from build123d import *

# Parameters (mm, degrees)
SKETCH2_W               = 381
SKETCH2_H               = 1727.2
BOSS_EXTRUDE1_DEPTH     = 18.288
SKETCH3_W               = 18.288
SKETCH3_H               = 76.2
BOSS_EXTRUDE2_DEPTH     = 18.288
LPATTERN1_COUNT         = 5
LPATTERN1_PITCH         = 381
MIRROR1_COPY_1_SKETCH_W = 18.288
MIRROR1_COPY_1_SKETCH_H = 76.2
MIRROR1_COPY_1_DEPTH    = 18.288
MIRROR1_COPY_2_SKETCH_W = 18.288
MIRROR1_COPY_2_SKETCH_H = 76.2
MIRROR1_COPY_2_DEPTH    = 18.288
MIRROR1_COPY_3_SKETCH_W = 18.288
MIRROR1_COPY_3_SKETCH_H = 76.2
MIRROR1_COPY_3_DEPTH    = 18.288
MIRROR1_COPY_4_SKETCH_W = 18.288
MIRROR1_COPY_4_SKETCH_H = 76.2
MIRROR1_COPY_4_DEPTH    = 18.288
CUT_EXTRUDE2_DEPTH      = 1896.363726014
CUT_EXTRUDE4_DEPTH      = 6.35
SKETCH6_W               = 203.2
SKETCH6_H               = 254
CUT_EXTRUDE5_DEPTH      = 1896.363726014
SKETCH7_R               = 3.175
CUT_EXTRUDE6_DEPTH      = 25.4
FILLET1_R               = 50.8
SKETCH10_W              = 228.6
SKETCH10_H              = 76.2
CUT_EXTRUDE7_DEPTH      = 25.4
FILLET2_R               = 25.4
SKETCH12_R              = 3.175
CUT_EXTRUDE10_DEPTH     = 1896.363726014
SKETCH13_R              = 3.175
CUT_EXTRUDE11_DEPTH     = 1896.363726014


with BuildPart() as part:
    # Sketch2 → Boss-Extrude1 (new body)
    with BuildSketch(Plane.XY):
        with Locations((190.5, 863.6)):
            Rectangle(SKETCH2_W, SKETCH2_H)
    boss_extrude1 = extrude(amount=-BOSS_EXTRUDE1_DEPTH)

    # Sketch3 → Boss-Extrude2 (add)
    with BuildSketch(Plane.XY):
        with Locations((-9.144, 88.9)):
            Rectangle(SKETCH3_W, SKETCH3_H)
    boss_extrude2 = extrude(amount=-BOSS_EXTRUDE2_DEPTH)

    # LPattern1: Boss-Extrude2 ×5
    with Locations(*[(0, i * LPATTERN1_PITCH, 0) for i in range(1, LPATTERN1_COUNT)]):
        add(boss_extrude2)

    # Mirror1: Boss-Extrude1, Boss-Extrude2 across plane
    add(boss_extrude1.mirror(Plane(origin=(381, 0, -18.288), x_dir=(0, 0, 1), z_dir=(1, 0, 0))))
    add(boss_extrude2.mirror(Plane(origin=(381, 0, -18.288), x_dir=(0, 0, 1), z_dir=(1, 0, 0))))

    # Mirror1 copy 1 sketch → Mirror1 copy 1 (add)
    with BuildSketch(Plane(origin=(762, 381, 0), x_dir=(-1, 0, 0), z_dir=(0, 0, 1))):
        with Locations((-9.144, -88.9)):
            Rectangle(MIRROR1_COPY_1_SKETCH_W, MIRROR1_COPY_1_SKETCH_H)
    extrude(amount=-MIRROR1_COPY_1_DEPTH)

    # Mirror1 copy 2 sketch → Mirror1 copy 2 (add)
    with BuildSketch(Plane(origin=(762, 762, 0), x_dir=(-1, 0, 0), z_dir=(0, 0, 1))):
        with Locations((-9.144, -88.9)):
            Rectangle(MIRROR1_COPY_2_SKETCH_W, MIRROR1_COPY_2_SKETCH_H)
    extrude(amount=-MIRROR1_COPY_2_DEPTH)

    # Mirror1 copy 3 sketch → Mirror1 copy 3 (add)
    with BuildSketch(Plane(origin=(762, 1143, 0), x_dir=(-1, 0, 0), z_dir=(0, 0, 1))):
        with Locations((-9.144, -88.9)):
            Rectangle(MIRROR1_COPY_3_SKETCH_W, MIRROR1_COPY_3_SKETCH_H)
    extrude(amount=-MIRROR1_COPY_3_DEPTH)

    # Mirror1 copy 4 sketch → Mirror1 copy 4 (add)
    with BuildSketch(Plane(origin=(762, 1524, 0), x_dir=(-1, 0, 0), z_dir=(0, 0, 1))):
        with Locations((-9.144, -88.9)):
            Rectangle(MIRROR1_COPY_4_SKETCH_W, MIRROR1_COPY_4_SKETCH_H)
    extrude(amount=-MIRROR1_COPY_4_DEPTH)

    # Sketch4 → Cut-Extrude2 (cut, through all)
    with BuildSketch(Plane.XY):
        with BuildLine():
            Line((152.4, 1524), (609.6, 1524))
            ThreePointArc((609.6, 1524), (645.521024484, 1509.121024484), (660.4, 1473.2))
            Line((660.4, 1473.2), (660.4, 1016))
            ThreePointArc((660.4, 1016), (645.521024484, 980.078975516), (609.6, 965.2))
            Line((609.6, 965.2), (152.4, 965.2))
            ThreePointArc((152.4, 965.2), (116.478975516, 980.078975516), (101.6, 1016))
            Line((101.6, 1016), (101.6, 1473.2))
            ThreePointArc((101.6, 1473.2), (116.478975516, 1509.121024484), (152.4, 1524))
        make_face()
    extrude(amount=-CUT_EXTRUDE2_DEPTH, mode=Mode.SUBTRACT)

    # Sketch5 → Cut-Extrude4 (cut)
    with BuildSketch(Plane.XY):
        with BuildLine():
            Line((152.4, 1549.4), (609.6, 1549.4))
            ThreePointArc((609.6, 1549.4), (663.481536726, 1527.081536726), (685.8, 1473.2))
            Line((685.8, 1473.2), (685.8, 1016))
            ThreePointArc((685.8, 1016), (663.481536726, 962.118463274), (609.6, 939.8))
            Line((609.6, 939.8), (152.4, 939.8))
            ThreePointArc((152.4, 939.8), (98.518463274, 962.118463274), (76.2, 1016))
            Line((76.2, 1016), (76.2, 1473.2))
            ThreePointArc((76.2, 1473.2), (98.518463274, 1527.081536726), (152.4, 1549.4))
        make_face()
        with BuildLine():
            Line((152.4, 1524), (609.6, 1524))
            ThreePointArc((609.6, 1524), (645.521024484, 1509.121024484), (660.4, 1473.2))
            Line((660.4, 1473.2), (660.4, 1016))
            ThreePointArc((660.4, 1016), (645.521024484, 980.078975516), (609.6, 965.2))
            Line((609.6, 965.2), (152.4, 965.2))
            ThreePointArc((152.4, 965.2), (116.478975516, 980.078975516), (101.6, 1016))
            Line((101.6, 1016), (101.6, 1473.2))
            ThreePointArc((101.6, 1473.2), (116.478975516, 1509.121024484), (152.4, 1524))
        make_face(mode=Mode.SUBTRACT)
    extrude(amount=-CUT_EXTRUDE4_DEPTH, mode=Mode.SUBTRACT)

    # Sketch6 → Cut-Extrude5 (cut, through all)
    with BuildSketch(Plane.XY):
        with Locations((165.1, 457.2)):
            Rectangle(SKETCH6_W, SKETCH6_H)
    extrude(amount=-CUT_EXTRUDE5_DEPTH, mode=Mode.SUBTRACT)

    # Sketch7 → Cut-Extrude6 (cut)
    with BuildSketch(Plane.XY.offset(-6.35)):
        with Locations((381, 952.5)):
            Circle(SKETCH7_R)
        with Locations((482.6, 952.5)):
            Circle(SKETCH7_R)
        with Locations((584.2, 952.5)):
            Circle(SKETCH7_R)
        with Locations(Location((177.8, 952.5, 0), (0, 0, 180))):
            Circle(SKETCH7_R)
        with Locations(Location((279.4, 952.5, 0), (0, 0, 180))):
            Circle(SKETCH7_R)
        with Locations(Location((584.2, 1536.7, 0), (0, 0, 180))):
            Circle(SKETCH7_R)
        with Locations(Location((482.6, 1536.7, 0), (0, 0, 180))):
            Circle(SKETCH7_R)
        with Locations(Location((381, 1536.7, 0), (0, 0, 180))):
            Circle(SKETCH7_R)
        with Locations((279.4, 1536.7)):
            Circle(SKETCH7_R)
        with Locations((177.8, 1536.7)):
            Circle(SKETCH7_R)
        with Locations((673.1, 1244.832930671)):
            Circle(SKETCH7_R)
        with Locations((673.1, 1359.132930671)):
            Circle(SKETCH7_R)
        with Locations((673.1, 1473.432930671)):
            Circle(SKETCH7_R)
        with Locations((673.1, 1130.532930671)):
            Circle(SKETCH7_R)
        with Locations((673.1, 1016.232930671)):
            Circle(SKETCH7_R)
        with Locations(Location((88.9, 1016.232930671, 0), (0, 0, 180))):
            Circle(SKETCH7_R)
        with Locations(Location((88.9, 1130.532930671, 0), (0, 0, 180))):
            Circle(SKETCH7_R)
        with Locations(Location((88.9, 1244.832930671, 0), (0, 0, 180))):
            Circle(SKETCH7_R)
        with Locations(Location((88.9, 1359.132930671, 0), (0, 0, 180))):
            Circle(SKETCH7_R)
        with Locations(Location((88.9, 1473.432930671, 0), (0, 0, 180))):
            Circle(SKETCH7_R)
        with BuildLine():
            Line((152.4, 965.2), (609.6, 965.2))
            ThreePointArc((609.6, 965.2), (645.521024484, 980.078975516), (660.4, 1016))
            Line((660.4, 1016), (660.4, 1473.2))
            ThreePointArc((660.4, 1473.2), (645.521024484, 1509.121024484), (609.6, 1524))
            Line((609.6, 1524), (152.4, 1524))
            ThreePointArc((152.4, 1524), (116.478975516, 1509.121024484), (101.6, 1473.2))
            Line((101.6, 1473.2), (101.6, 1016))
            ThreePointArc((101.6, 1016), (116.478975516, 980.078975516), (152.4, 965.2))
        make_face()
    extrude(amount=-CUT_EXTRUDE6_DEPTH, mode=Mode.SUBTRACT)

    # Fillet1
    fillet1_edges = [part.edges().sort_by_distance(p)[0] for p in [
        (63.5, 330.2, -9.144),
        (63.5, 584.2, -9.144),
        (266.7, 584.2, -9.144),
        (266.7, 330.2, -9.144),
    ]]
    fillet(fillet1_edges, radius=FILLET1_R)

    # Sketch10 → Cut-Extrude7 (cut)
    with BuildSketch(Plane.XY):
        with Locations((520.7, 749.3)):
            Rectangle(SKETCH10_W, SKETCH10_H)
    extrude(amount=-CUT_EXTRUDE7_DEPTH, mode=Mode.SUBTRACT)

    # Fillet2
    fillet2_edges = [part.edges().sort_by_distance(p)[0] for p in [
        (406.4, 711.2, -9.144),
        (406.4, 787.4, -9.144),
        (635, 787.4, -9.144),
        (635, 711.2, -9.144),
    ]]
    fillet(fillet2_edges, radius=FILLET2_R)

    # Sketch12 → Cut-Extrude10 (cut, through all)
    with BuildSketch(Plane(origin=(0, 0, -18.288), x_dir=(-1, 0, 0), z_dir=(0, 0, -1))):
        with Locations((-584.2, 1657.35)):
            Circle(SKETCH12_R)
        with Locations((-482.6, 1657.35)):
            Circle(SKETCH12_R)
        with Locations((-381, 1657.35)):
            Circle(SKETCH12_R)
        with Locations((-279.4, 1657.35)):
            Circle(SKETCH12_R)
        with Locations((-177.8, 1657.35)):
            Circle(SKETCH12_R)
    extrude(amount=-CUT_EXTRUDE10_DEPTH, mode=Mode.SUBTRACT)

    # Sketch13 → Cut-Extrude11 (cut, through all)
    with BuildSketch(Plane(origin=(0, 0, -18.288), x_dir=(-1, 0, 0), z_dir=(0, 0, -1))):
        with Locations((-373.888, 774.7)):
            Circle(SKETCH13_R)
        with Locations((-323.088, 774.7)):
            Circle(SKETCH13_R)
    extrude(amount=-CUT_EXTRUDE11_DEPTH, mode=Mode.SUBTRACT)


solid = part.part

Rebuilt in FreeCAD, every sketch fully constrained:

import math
import FreeCAD as App
import Part
import Sketcher
from FreeCAD import Vector
Q = App.Units.Quantity


def edges_at(feature, points):
    """Names of the edges that pass closest to the given points."""
    edges = feature.Shape.Edges
    near = lambda p: min(range(len(edges)), key=lambda i: edges[i].distToShape(Part.Vertex(*p))[0])
    return sorted({f"Edge{near(p) + 1}" for p in points})


def add_polygon(sketch, points):
    """Adds a closed chain of lines whose ends are joined by coincident constraints."""
    first, n = sketch.GeometryCount, len(points)
    for a, b in zip(points, points[1:] + points[:1]):
        sketch.addGeometry(Part.LineSegment(App.Vector(*a, 0), App.Vector(*b, 0)), False)
    for i in range(n):
        sketch.addConstraint(Sketcher.Constraint("Coincident", first + i, 2, first + (i + 1) % n, 1))

doc = App.newDocument("Part")
body = doc.addObject("PartDesign::Body", "Body")

# Sketch on XY plane
sketch1 = body.newObject("Sketcher::SketchObject", "Sketch")
sketch1.AttachmentSupport = (doc.getObject("XY_Plane"), [""])
sketch1.MapMode = "FlatFace"
add_polygon(sketch1, [(0, 1727), (0, 0), (381, 0), (381, 1727)])  # lines 0-3
sketch1.addConstraint(Sketcher.Constraint("Vertical", 0))
sketch1.addConstraint(Sketcher.Constraint("Horizontal", 1))
sketch1.addConstraint(Sketcher.Constraint("Vertical", 2))
sketch1.addConstraint(Sketcher.Constraint("Horizontal", 3))
sketch1.addConstraint(Sketcher.Constraint("Coincident", 0, 2, -1, 1))
sketch1.addConstraint(Sketcher.Constraint("DistanceX", 1, 1, 1, 2, Q("15 in")))
sketch1.addConstraint(Sketcher.Constraint("DistanceY", 0, 2, 0, 1, Q("68 in")))
pad1 = body.newObject("PartDesign::Pad", "Pad")
pad1.Profile = sketch1
pad1.Length = Q("0.72 in")
pad1.Reversed = True

# Sketch on XY plane
sketch2 = body.newObject("Sketcher::SketchObject", "Sketch001")
sketch2.AttachmentSupport = (doc.getObject("XY_Plane"), [""])
sketch2.MapMode = "FlatFace"
add_polygon(sketch2, [(-18, 127), (-18, 51), (0, 51), (0, 127)])  # lines 0-3
sketch2.addConstraint(Sketcher.Constraint("Vertical", 0))
sketch2.addConstraint(Sketcher.Constraint("Horizontal", 1))
sketch2.addConstraint(Sketcher.Constraint("Vertical", 2))
sketch2.addConstraint(Sketcher.Constraint("Horizontal", 3))
sketch2.addConstraint(Sketcher.Constraint("PointOnObject", 1, 2, -2))
sketch2.addConstraint(Sketcher.Constraint("DistanceY", 0, 2, 0, 1, Q("3 in")))
sketch2.addConstraint(Sketcher.Constraint("DistanceY", -1, 1, 0, 2, Q("2 in")))
sketch2.addConstraint(Sketcher.Constraint("DistanceX", 1, 1, 1, 2, Q("0.72 in")))
pad2 = body.newObject("PartDesign::Pad", "Pad001")
pad2.Profile = sketch2
pad2.Length = Q("0.72 in")
pad2.Reversed = True
doc.recompute()

linearpattern = body.newObject("PartDesign::LinearPattern", "LinearPattern")
linearpattern.Originals = [pad2]
linearpattern.Direction = (doc.getObject("Y_Axis"), [""])
linearpattern.Mode = "offset"
linearpattern.Offset = Q("15 in")
linearpattern.Occurrences = 5
body.Tip = linearpattern
doc.recompute()

datumplane = body.newObject("PartDesign::Plane", "DatumPlane")
datumplane.AttachmentSupport = (doc.getObject("YZ_Plane"), [""])
datumplane.MapMode = "FlatFace"
datumplane.AttachmentOffset = App.Placement(Vector(0, 0, 15 * 25.4), App.Rotation())
mirrored = body.newObject("PartDesign::Mirrored", "Mirrored")
mirrored.Originals = [pad1, pad2]
mirrored.MirrorPlane = (datumplane, [""])
body.Tip = mirrored

# Sketch on XY plane
sketch3 = body.newObject("Sketcher::SketchObject", "Sketch002")
sketch3.AttachmentSupport = (doc.getObject("XY_Plane"), [""])
sketch3.MapMode = "FlatFace"
add_polygon(sketch3, [(780, 432), (780, 508), (762, 508), (762, 432)])  # lines 0-3
sketch3.addConstraint(Sketcher.Constraint("Vertical", 0))
sketch3.addConstraint(Sketcher.Constraint("Horizontal", 1))
sketch3.addConstraint(Sketcher.Constraint("Vertical", 2))
sketch3.addConstraint(Sketcher.Constraint("Horizontal", 3))
sketch3.addConstraint(Sketcher.Constraint("DistanceY", 0, 1, 0, 2, Q("3 in")))
sketch3.addConstraint(Sketcher.Constraint("DistanceY", -1, 1, 0, 2, Q("20 in")))
sketch3.addConstraint(Sketcher.Constraint("DistanceX", -1, 1, 1, 2, Q("30 in")))
sketch3.addConstraint(Sketcher.Constraint("DistanceX", 1, 2, 1, 1, Q("0.72 in")))
pad3 = body.newObject("PartDesign::Pad", "Pad002")
pad3.Profile = sketch3
pad3.Length = Q("0.72 in")
pad3.Reversed = True

# Sketch on XY plane
sketch4 = body.newObject("Sketcher::SketchObject", "Sketch003")
sketch4.AttachmentSupport = (doc.getObject("XY_Plane"), [""])
sketch4.MapMode = "FlatFace"
add_polygon(sketch4, [(780, 813), (780, 889), (762, 889), (762, 813)])  # lines 0-3
sketch4.addConstraint(Sketcher.Constraint("Vertical", 0))
sketch4.addConstraint(Sketcher.Constraint("Horizontal", 1))
sketch4.addConstraint(Sketcher.Constraint("Vertical", 2))
sketch4.addConstraint(Sketcher.Constraint("Horizontal", 3))
sketch4.addConstraint(Sketcher.Constraint("DistanceY", 0, 1, 0, 2, Q("3 in")))
sketch4.addConstraint(Sketcher.Constraint("DistanceY", -1, 1, 0, 2, Q("35 in")))
sketch4.addConstraint(Sketcher.Constraint("DistanceX", -1, 1, 1, 2, Q("30 in")))
sketch4.addConstraint(Sketcher.Constraint("DistanceX", 1, 2, 1, 1, Q("0.72 in")))
pad4 = body.newObject("PartDesign::Pad", "Pad003")
pad4.Profile = sketch4
pad4.Length = Q("0.72 in")
pad4.Reversed = True

# Sketch on XY plane
sketch5 = body.newObject("Sketcher::SketchObject", "Sketch004")
sketch5.AttachmentSupport = (doc.getObject("XY_Plane"), [""])
sketch5.MapMode = "FlatFace"
add_polygon(sketch5, [(780, 1194), (780, 1270), (762, 1270), (762, 1194)])  # lines 0-3
sketch5.addConstraint(Sketcher.Constraint("Vertical", 0))
sketch5.addConstraint(Sketcher.Constraint("Horizontal", 1))
sketch5.addConstraint(Sketcher.Constraint("Vertical", 2))
sketch5.addConstraint(Sketcher.Constraint("Horizontal", 3))
sketch5.addConstraint(Sketcher.Constraint("DistanceY", 0, 1, 0, 2, Q("3 in")))
sketch5.addConstraint(Sketcher.Constraint("DistanceY", -1, 1, 0, 2, Q("50 in")))
sketch5.addConstraint(Sketcher.Constraint("DistanceX", -1, 1, 1, 2, Q("30 in")))
sketch5.addConstraint(Sketcher.Constraint("DistanceX", 1, 2, 1, 1, Q("0.72 in")))
pad5 = body.newObject("PartDesign::Pad", "Pad004")
pad5.Profile = sketch5
pad5.Length = Q("0.72 in")
pad5.Reversed = True

# Sketch on XY plane
sketch6 = body.newObject("Sketcher::SketchObject", "Sketch005")
sketch6.AttachmentSupport = (doc.getObject("XY_Plane"), [""])
sketch6.MapMode = "FlatFace"
add_polygon(sketch6, [(780, 1575), (780, 1651), (762, 1651), (762, 1575)])  # lines 0-3
sketch6.addConstraint(Sketcher.Constraint("Vertical", 0))
sketch6.addConstraint(Sketcher.Constraint("Horizontal", 1))
sketch6.addConstraint(Sketcher.Constraint("Vertical", 2))
sketch6.addConstraint(Sketcher.Constraint("Horizontal", 3))
sketch6.addConstraint(Sketcher.Constraint("DistanceY", 0, 1, 0, 2, Q("3 in")))
sketch6.addConstraint(Sketcher.Constraint("DistanceY", -1, 1, 0, 2, Q("65 in")))
sketch6.addConstraint(Sketcher.Constraint("DistanceX", -1, 1, 1, 2, Q("30 in")))
sketch6.addConstraint(Sketcher.Constraint("DistanceX", 1, 2, 1, 1, Q("0.72 in")))
pad6 = body.newObject("PartDesign::Pad", "Pad005")
pad6.Profile = sketch6
pad6.Length = Q("0.72 in")
pad6.Reversed = True

# Sketch on XY plane
sketch7 = body.newObject("Sketcher::SketchObject", "Sketch006")
sketch7.AttachmentSupport = (doc.getObject("XY_Plane"), [""])
sketch7.MapMode = "FlatFace"
sketch7.addGeometry(Part.LineSegment(Vector(610, 1524, 0), Vector(152, 1524, 0)), False)
sketch7.addGeometry(Part.ArcOfCircle(Part.Circle(Vector(152, 1473, 0), Vector(0, 0, 1), 51), math.radians(90), math.radians(180)), False)
sketch7.addGeometry(Part.LineSegment(Vector(102, 1473, 0), Vector(102, 1016, 0)), False)
sketch7.addGeometry(Part.ArcOfCircle(Part.Circle(Vector(152, 1016, 0), Vector(0, 0, 1), 51), math.radians(-180), math.radians(-90)), False)
sketch7.addGeometry(Part.LineSegment(Vector(152, 965, 0), Vector(610, 965, 0)), False)
sketch7.addGeometry(Part.ArcOfCircle(Part.Circle(Vector(610, 1016, 0), Vector(0, 0, 1), 51), math.radians(-90), math.radians(0)), False)
sketch7.addGeometry(Part.LineSegment(Vector(660, 1016, 0), Vector(660, 1473, 0)), False)
sketch7.addGeometry(Part.ArcOfCircle(Part.Circle(Vector(610, 1473, 0), Vector(0, 0, 1), 51), math.radians(0), math.radians(90)), False)
sketch7.addConstraint(Sketcher.Constraint("Tangent", 0, 2, 1, 1))
sketch7.addConstraint(Sketcher.Constraint("Tangent", 1, 2, 2, 1))
sketch7.addConstraint(Sketcher.Constraint("Tangent", 2, 2, 3, 1))
sketch7.addConstraint(Sketcher.Constraint("Tangent", 3, 2, 4, 1))
sketch7.addConstraint(Sketcher.Constraint("Tangent", 4, 2, 5, 1))
sketch7.addConstraint(Sketcher.Constraint("Tangent", 5, 2, 6, 1))
sketch7.addConstraint(Sketcher.Constraint("Tangent", 6, 2, 7, 1))
sketch7.addConstraint(Sketcher.Constraint("Tangent", 7, 2, 0, 1))
sketch7.addConstraint(Sketcher.Constraint("Horizontal", 0))
sketch7.addConstraint(Sketcher.Constraint("Vertical", 2))
sketch7.addConstraint(Sketcher.Constraint("Horizontal", 4))
sketch7.addConstraint(Sketcher.Constraint("Vertical", 6))
sketch7.addConstraint(Sketcher.Constraint("Equal", 1, 3))
sketch7.addConstraint(Sketcher.Constraint("Equal", 3, 5))
sketch7.addConstraint(Sketcher.Constraint("Equal", 5, 7))
sketch7.addConstraint(Sketcher.Constraint("Equal", 4, 2))
sketch7.addConstraint(Sketcher.Constraint("Radius", 1, Q("2 in")))
sketch7.addConstraint(Sketcher.Constraint("DistanceX", 0, 2, 0, 1, Q("18 in")))
sketch7.addConstraint(Sketcher.Constraint("DistanceX", -1, 1, 1, 3, Q("6 in")))
sketch7.addConstraint(Sketcher.Constraint("DistanceY", -1, 1, 1, 3, Q("58 in")))
pocket1 = body.newObject("PartDesign::Pocket", "Pocket")
pocket1.Profile = sketch7
pocket1.Type = "ThroughAll"

# Sketch on XY plane
sketch8 = body.newObject("Sketcher::SketchObject", "Sketch007")
sketch8.AttachmentSupport = (doc.getObject("XY_Plane"), [""])
sketch8.MapMode = "FlatFace"
sketch8.addGeometry(Part.LineSegment(Vector(610, 1549, 0), Vector(152, 1549, 0)), False)
sketch8.addGeometry(Part.ArcOfCircle(Part.Circle(Vector(152, 1473, 0), Vector(0, 0, 1), 76), math.radians(90), math.radians(180)), False)
sketch8.addGeometry(Part.LineSegment(Vector(76, 1473, 0), Vector(76, 1016, 0)), False)
sketch8.addGeometry(Part.ArcOfCircle(Part.Circle(Vector(152, 1016, 0), Vector(0, 0, 1), 76), math.radians(-180), math.radians(-90)), False)
sketch8.addGeometry(Part.LineSegment(Vector(152, 940, 0), Vector(610, 940, 0)), False)
sketch8.addGeometry(Part.ArcOfCircle(Part.Circle(Vector(610, 1016, 0), Vector(0, 0, 1), 76), math.radians(-90), math.radians(0)), False)
sketch8.addGeometry(Part.LineSegment(Vector(686, 1016, 0), Vector(686, 1473, 0)), False)
sketch8.addGeometry(Part.ArcOfCircle(Part.Circle(Vector(610, 1473, 0), Vector(0, 0, 1), 76), math.radians(0), math.radians(90)), False)
sketch8.addGeometry(Part.LineSegment(Vector(152, 1524, 0), Vector(610, 1524, 0)), False)
sketch8.addGeometry(Part.ArcOfCircle(Part.Circle(Vector(610, 1473, 0), Vector(0, 0, 1), 51), math.radians(0), math.radians(90)), False)
sketch8.addGeometry(Part.LineSegment(Vector(660, 1473, 0), Vector(660, 1016, 0)), False)
sketch8.addGeometry(Part.ArcOfCircle(Part.Circle(Vector(610, 1016, 0), Vector(0, 0, 1), 51), math.radians(-90), math.radians(0)), False)
sketch8.addGeometry(Part.LineSegment(Vector(610, 965, 0), Vector(152, 965, 0)), False)
sketch8.addGeometry(Part.ArcOfCircle(Part.Circle(Vector(152, 1016, 0), Vector(0, 0, 1), 51), math.radians(-180), math.radians(-90)), False)
sketch8.addGeometry(Part.LineSegment(Vector(102, 1016, 0), Vector(102, 1473, 0)), False)
sketch8.addGeometry(Part.ArcOfCircle(Part.Circle(Vector(152, 1473, 0), Vector(0, 0, 1), 51), math.radians(90), math.radians(180)), False)
sketch8.addConstraint(Sketcher.Constraint("Tangent", 0, 2, 1, 1))
sketch8.addConstraint(Sketcher.Constraint("Tangent", 1, 2, 2, 1))
sketch8.addConstraint(Sketcher.Constraint("Tangent", 2, 2, 3, 1))
sketch8.addConstraint(Sketcher.Constraint("Tangent", 3, 2, 4, 1))
sketch8.addConstraint(Sketcher.Constraint("Tangent", 4, 2, 5, 1))
sketch8.addConstraint(Sketcher.Constraint("Tangent", 5, 2, 6, 1))
sketch8.addConstraint(Sketcher.Constraint("Tangent", 6, 2, 7, 1))
sketch8.addConstraint(Sketcher.Constraint("Tangent", 7, 2, 0, 1))
sketch8.addConstraint(Sketcher.Constraint("Tangent", 8, 2, 9, 2))
sketch8.addConstraint(Sketcher.Constraint("Tangent", 9, 1, 10, 1))
sketch8.addConstraint(Sketcher.Constraint("Tangent", 10, 2, 11, 2))
sketch8.addConstraint(Sketcher.Constraint("Tangent", 11, 1, 12, 1))
sketch8.addConstraint(Sketcher.Constraint("Tangent", 12, 2, 13, 2))
sketch8.addConstraint(Sketcher.Constraint("Tangent", 13, 1, 14, 1))
sketch8.addConstraint(Sketcher.Constraint("Tangent", 14, 2, 15, 2))
sketch8.addConstraint(Sketcher.Constraint("Tangent", 15, 1, 8, 1))
sketch8.addConstraint(Sketcher.Constraint("Horizontal", 0))
sketch8.addConstraint(Sketcher.Constraint("Vertical", 2))
sketch8.addConstraint(Sketcher.Constraint("Horizontal", 4))
sketch8.addConstraint(Sketcher.Constraint("Vertical", 6))
sketch8.addConstraint(Sketcher.Constraint("Horizontal", 8))
sketch8.addConstraint(Sketcher.Constraint("Vertical", 10))
sketch8.addConstraint(Sketcher.Constraint("Horizontal", 12))
sketch8.addConstraint(Sketcher.Constraint("Vertical", 14))
sketch8.addConstraint(Sketcher.Constraint("Coincident", 9, 3, 7, 3))
sketch8.addConstraint(Sketcher.Constraint("Coincident", 11, 3, 5, 3))
sketch8.addConstraint(Sketcher.Constraint("Coincident", 13, 3, 3, 3))
sketch8.addConstraint(Sketcher.Constraint("Equal", 1, 3))
sketch8.addConstraint(Sketcher.Constraint("Equal", 3, 5))
sketch8.addConstraint(Sketcher.Constraint("Equal", 5, 7))
sketch8.addConstraint(Sketcher.Constraint("Equal", 13, 15))
sketch8.addConstraint(Sketcher.Constraint("Equal", 12, 2))
sketch8.addConstraint(Sketcher.Constraint("Radius", 1, Q("3 in")))
sketch8.addConstraint(Sketcher.Constraint("Radius", 9, Q("2 in")))
sketch8.addConstraint(Sketcher.Constraint("DistanceX", 0, 2, 0, 1, Q("18 in")))
sketch8.addConstraint(Sketcher.Constraint("DistanceX", -1, 1, 1, 3, Q("6 in")))
sketch8.addConstraint(Sketcher.Constraint("DistanceY", -1, 1, 1, 3, Q("58 in")))
pocket2 = body.newObject("PartDesign::Pocket", "Pocket001")
pocket2.Profile = sketch8
pocket2.Length = Q("0.25 in")

# Sketch on XY plane
sketch9 = body.newObject("Sketcher::SketchObject", "Sketch008")
sketch9.AttachmentSupport = (doc.getObject("XY_Plane"), [""])
sketch9.MapMode = "FlatFace"
add_polygon(sketch9, [(64, 584), (64, 330), (267, 330), (267, 584)])  # lines 0-3
sketch9.addConstraint(Sketcher.Constraint("Vertical", 0))
sketch9.addConstraint(Sketcher.Constraint("Horizontal", 1))
sketch9.addConstraint(Sketcher.Constraint("Vertical", 2))
sketch9.addConstraint(Sketcher.Constraint("Horizontal", 3))
sketch9.addConstraint(Sketcher.Constraint("DistanceX", 1, 1, 1, 2, Q("8 in")))
sketch9.addConstraint(Sketcher.Constraint("DistanceY", 0, 2, 0, 1, Q("10 in")))
sketch9.addConstraint(Sketcher.Constraint("DistanceY", -1, 1, 0, 2, Q("13 in")))
sketch9.addConstraint(Sketcher.Constraint("DistanceX", -1, 1, 0, 2, Q("2.5 in")))
pocket3 = body.newObject("PartDesign::Pocket", "Pocket002")
pocket3.Profile = sketch9
pocket3.Type = "ThroughAll"

# Sketch on XY plane
sketch10 = body.newObject("Sketcher::SketchObject", "Sketch009")
sketch10.AttachmentSupport = (doc.getObject("XY_Plane"), [""])
sketch10.MapMode = "FlatFace"
sketch10.AttachmentOffset = App.Placement(Vector(0, 0, -0.25 * 25.4), App.Rotation())
sketch10.addGeometry(Part.Circle(Vector(381, 952.5, 0), Vector(0, 0, 1), 3.2), False)
sketch10.addGeometry(Part.Circle(Vector(482.6, 952.5, 0), Vector(0, 0, 1), 3.2), False)
sketch10.addGeometry(Part.Circle(Vector(584.2, 952.5, 0), Vector(0, 0, 1), 3.2), False)
sketch10.addGeometry(Part.Circle(Vector(177.8, 952.5, 0), Vector(0, 0, 1), 3.2), False)
sketch10.addGeometry(Part.Circle(Vector(279.4, 952.5, 0), Vector(0, 0, 1), 3.2), False)
sketch10.addGeometry(Part.Circle(Vector(584.2, 1536.7, 0), Vector(0, 0, 1), 3.2), False)
sketch10.addGeometry(Part.Circle(Vector(482.6, 1536.7, 0), Vector(0, 0, 1), 3.2), False)
sketch10.addGeometry(Part.Circle(Vector(381, 1536.7, 0), Vector(0, 0, 1), 3.2), False)
sketch10.addGeometry(Part.Circle(Vector(279.4, 1536.7, 0), Vector(0, 0, 1), 3.2), False)
sketch10.addGeometry(Part.Circle(Vector(177.8, 1536.7, 0), Vector(0, 0, 1), 3.2), False)
sketch10.addGeometry(Part.Circle(Vector(673.1, 1244.8, 0), Vector(0, 0, 1), 3.2), False)
sketch10.addGeometry(Part.Circle(Vector(673.1, 1359.1, 0), Vector(0, 0, 1), 3.2), False)
sketch10.addGeometry(Part.Circle(Vector(673.1, 1473.4, 0), Vector(0, 0, 1), 3.2), False)
sketch10.addGeometry(Part.Circle(Vector(673.1, 1130.5, 0), Vector(0, 0, 1), 3.2), False)
sketch10.addGeometry(Part.Circle(Vector(673.1, 1016.2, 0), Vector(0, 0, 1), 3.2), False)
sketch10.addGeometry(Part.Circle(Vector(88.9, 1016.2, 0), Vector(0, 0, 1), 3.2), False)
sketch10.addGeometry(Part.Circle(Vector(88.9, 1130.5, 0), Vector(0, 0, 1), 3.2), False)
sketch10.addGeometry(Part.Circle(Vector(88.9, 1244.8, 0), Vector(0, 0, 1), 3.2), False)
sketch10.addGeometry(Part.Circle(Vector(88.9, 1359.1, 0), Vector(0, 0, 1), 3.2), False)
sketch10.addGeometry(Part.Circle(Vector(88.9, 1473.4, 0), Vector(0, 0, 1), 3.2), False)
sketch10.addGeometry(Part.LineSegment(Vector(152.4, 965.2, 0), Vector(609.6, 965.2, 0)), False)
sketch10.addGeometry(Part.ArcOfCircle(Part.Circle(Vector(609.6, 1016, 0), Vector(0, 0, 1), 50.8), math.radians(-90), math.radians(0)), False)
sketch10.addGeometry(Part.LineSegment(Vector(660.4, 1016, 0), Vector(660.4, 1473.2, 0)), False)
sketch10.addGeometry(Part.ArcOfCircle(Part.Circle(Vector(609.6, 1473.2, 0), Vector(0, 0, 1), 50.8), math.radians(0), math.radians(90)), False)
sketch10.addGeometry(Part.LineSegment(Vector(609.6, 1524, 0), Vector(152.4, 1524, 0)), False)
sketch10.addGeometry(Part.ArcOfCircle(Part.Circle(Vector(152.4, 1473.2, 0), Vector(0, 0, 1), 50.8), math.radians(90), math.radians(180)), False)
sketch10.addGeometry(Part.LineSegment(Vector(101.6, 1473.2, 0), Vector(101.6, 1016, 0)), False)
sketch10.addGeometry(Part.ArcOfCircle(Part.Circle(Vector(152.4, 1016, 0), Vector(0, 0, 1), 50.8), math.radians(-180), math.radians(-90)), False)
sketch10.addConstraint(Sketcher.Constraint("Tangent", 20, 2, 21, 1))
sketch10.addConstraint(Sketcher.Constraint("Tangent", 21, 2, 22, 1))
sketch10.addConstraint(Sketcher.Constraint("Tangent", 22, 2, 23, 1))
sketch10.addConstraint(Sketcher.Constraint("Tangent", 23, 2, 24, 1))
sketch10.addConstraint(Sketcher.Constraint("Tangent", 24, 2, 25, 1))
sketch10.addConstraint(Sketcher.Constraint("Tangent", 25, 2, 26, 1))
sketch10.addConstraint(Sketcher.Constraint("Tangent", 26, 2, 27, 1))
sketch10.addConstraint(Sketcher.Constraint("Tangent", 27, 2, 20, 1))
sketch10.addConstraint(Sketcher.Constraint("Horizontal", 20))
sketch10.addConstraint(Sketcher.Constraint("Vertical", 22))
sketch10.addConstraint(Sketcher.Constraint("Horizontal", 24))
sketch10.addConstraint(Sketcher.Constraint("Vertical", 26))
sketch10.addConstraint(Sketcher.Constraint("Equal", 0, 1))
sketch10.addConstraint(Sketcher.Constraint("Equal", 1, 2))
sketch10.addConstraint(Sketcher.Constraint("Equal", 2, 3))
sketch10.addConstraint(Sketcher.Constraint("Equal", 3, 4))
sketch10.addConstraint(Sketcher.Constraint("Equal", 4, 5))
sketch10.addConstraint(Sketcher.Constraint("Equal", 5, 6))
sketch10.addConstraint(Sketcher.Constraint("Equal", 6, 7))
sketch10.addConstraint(Sketcher.Constraint("Equal", 7, 8))
sketch10.addConstraint(Sketcher.Constraint("Equal", 8, 9))
sketch10.addConstraint(Sketcher.Constraint("Equal", 9, 10))
sketch10.addConstraint(Sketcher.Constraint("Equal", 10, 11))
sketch10.addConstraint(Sketcher.Constraint("Equal", 11, 12))
sketch10.addConstraint(Sketcher.Constraint("Equal", 12, 13))
sketch10.addConstraint(Sketcher.Constraint("Equal", 13, 14))
sketch10.addConstraint(Sketcher.Constraint("Equal", 14, 15))
sketch10.addConstraint(Sketcher.Constraint("Equal", 15, 16))
sketch10.addConstraint(Sketcher.Constraint("Equal", 16, 17))
sketch10.addConstraint(Sketcher.Constraint("Equal", 17, 18))
sketch10.addConstraint(Sketcher.Constraint("Equal", 18, 19))
sketch10.addConstraint(Sketcher.Constraint("Equal", 21, 23))
sketch10.addConstraint(Sketcher.Constraint("Equal", 23, 25))
sketch10.addConstraint(Sketcher.Constraint("Equal", 25, 27))
sketch10.addConstraint(Sketcher.Constraint("Horizontal", 0, 3, 1, 3))
sketch10.addConstraint(Sketcher.Constraint("Horizontal", 1, 3, 2, 3))
sketch10.addConstraint(Sketcher.Constraint("Horizontal", 2, 3, 3, 3))
sketch10.addConstraint(Sketcher.Constraint("Horizontal", 3, 3, 4, 3))
sketch10.addConstraint(Sketcher.Constraint("Horizontal", 5, 3, 6, 3))
sketch10.addConstraint(Sketcher.Constraint("Horizontal", 6, 3, 7, 3))
sketch10.addConstraint(Sketcher.Constraint("Horizontal", 7, 3, 8, 3))
sketch10.addConstraint(Sketcher.Constraint("Horizontal", 8, 3, 9, 3))
sketch10.addConstraint(Sketcher.Constraint("Horizontal", 14, 3, 15, 3))
sketch10.addConstraint(Sketcher.Constraint("Horizontal", 13, 3, 16, 3))
sketch10.addConstraint(Sketcher.Constraint("Horizontal", 10, 3, 17, 3))
sketch10.addConstraint(Sketcher.Constraint("Horizontal", 11, 3, 18, 3))
sketch10.addConstraint(Sketcher.Constraint("Horizontal", 12, 3, 19, 3))
sketch10.addConstraint(Sketcher.Constraint("Vertical", 2, 3, 5, 3))
sketch10.addConstraint(Sketcher.Constraint("Vertical", 1, 3, 6, 3))
sketch10.addConstraint(Sketcher.Constraint("Vertical", 0, 3, 7, 3))
sketch10.addConstraint(Sketcher.Constraint("Vertical", 4, 3, 8, 3))
sketch10.addConstraint(Sketcher.Constraint("Vertical", 3, 3, 9, 3))
sketch10.addConstraint(Sketcher.Constraint("Vertical", 10, 3, 11, 3))
sketch10.addConstraint(Sketcher.Constraint("Vertical", 11, 3, 12, 3))
sketch10.addConstraint(Sketcher.Constraint("Vertical", 12, 3, 13, 3))
sketch10.addConstraint(Sketcher.Constraint("Vertical", 13, 3, 14, 3))
sketch10.addConstraint(Sketcher.Constraint("Vertical", 15, 3, 16, 3))
sketch10.addConstraint(Sketcher.Constraint("Vertical", 16, 3, 17, 3))
sketch10.addConstraint(Sketcher.Constraint("Vertical", 17, 3, 18, 3))
sketch10.addConstraint(Sketcher.Constraint("Vertical", 18, 3, 19, 3))
sketch10.addConstraint(Sketcher.Constraint("Equal", 24, 22))
sketch10.addConstraint(Sketcher.Constraint("Radius", 21, Q("2 in")))
sketch10.addConstraint(Sketcher.Constraint("Diameter", 0, Q("0.25 in")))
sketch10.addConstraint(Sketcher.Constraint("DistanceX", 20, 1, 20, 2, Q("18 in")))
sketch10.addConstraint(Sketcher.Constraint("DistanceX", -1, 1, 0, 3, Q("15 in")))
sketch10.addConstraint(Sketcher.Constraint("DistanceX", -1, 1, 1, 3, Q("19 in")))
sketch10.addConstraint(Sketcher.Constraint("DistanceX", -1, 1, 2, 3, Q("23 in")))
sketch10.addConstraint(Sketcher.Constraint("DistanceX", -1, 1, 3, 3, Q("7 in")))
sketch10.addConstraint(Sketcher.Constraint("DistanceX", -1, 1, 4, 3, Q("11 in")))
sketch10.addConstraint(Sketcher.Constraint("DistanceX", -1, 1, 21, 3, Q("24 in")))
sketch10.addConstraint(Sketcher.Constraint("DistanceY", -1, 1, 21, 3, Q("40 in")))
sketch10.addConstraint(Sketcher.Constraint("DistanceY", 2, 3, 5, 3, Q("23 in")))
sketch10.addConstraint(Sketcher.Constraint("DistanceY", 10, 3, 12, 3, Q("9 in")))
sketch10.addConstraint(Sketcher.Constraint("DistanceY", 13, 3, 11, 3, Q("9 in")))
sketch10.addConstraint(Sketcher.Constraint("DistanceY", 14, 3, 10, 3, Q("9 in")))
sketch10.addConstraint(Sketcher.Constraint("DistanceY", -1, 1, 0, 3, Q("37.5 in")))
sketch10.addConstraint(Sketcher.Constraint("DistanceX", -1, 1, 10, 3, Q("26.5 in")))
sketch10.addConstraint(Sketcher.Constraint("DistanceX", -1, 1, 15, 3, Q("3.5 in")))
sketch10.addConstraint(Sketcher.Constraint("DistanceY", 10, 3, 11, 3, Q("4.5 in")))
sketch10.addConstraint(Sketcher.Constraint("DistanceY", -1, 1, 10, 3, Q("1244.832931 mm")))
pocket4 = body.newObject("PartDesign::Pocket", "Pocket003")
pocket4.Profile = sketch10
pocket4.Length = Q("1 in")
doc.recompute()

fillet = body.newObject("PartDesign::Fillet", "Fillet")
fillet.Base = (pocket4, edges_at(pocket4, [
    (63.5, 330.2, -9.144),
    (63.5, 584.2, -9.144),
    (266.7, 584.2, -9.144),
    (266.7, 330.2, -9.144),
]))
fillet.Radius = Q("2 in")

# Sketch on XY plane
sketch11 = body.newObject("Sketcher::SketchObject", "Sketch010")
sketch11.AttachmentSupport = (doc.getObject("XY_Plane"), [""])
sketch11.MapMode = "FlatFace"
add_polygon(sketch11, [(406, 787), (406, 711), (635, 711), (635, 787)])  # lines 0-3
sketch11.addConstraint(Sketcher.Constraint("Vertical", 0))
sketch11.addConstraint(Sketcher.Constraint("Horizontal", 1))
sketch11.addConstraint(Sketcher.Constraint("Vertical", 2))
sketch11.addConstraint(Sketcher.Constraint("Horizontal", 3))
sketch11.addConstraint(Sketcher.Constraint("DistanceX", 1, 1, 1, 2, Q("9 in")))
sketch11.addConstraint(Sketcher.Constraint("DistanceY", 0, 2, 0, 1, Q("3 in")))
sketch11.addConstraint(Sketcher.Constraint("DistanceX", -1, 1, 0, 2, Q("16 in")))
sketch11.addConstraint(Sketcher.Constraint("DistanceY", -1, 1, 0, 2, Q("28 in")))
pocket5 = body.newObject("PartDesign::Pocket", "Pocket004")
pocket5.Profile = sketch11
pocket5.Length = Q("1 in")
doc.recompute()

fillet2 = body.newObject("PartDesign::Fillet", "Fillet001")
fillet2.Base = (pocket5, edges_at(pocket5, [
    (406.4, 711.2, -9.144),
    (406.4, 787.4, -9.144),
    (635, 787.4, -9.144),
    (635, 711.2, -9.144),
]))
fillet2.Radius = Q("1 in")

# Sketch on XY plane
sketch12 = body.newObject("Sketcher::SketchObject", "Sketch011")
sketch12.AttachmentSupport = (doc.getObject("XY_Plane"), [""])
sketch12.MapMode = "FlatFace"
sketch12.AttachmentOffset = App.Placement(Vector(0, 0, -0.72 * 25.4), App.Rotation())
sketch12.addGeometry(Part.Circle(Vector(584.2, 1657.3, 0), Vector(0, 0, 1), 3.2), False)
sketch12.addGeometry(Part.Circle(Vector(482.6, 1657.3, 0), Vector(0, 0, 1), 3.2), False)
sketch12.addGeometry(Part.Circle(Vector(381, 1657.3, 0), Vector(0, 0, 1), 3.2), False)
sketch12.addGeometry(Part.Circle(Vector(279.4, 1657.3, 0), Vector(0, 0, 1), 3.2), False)
sketch12.addGeometry(Part.Circle(Vector(177.8, 1657.3, 0), Vector(0, 0, 1), 3.2), False)
sketch12.addConstraint(Sketcher.Constraint("Equal", 0, 1))
sketch12.addConstraint(Sketcher.Constraint("Equal", 1, 2))
sketch12.addConstraint(Sketcher.Constraint("Equal", 2, 3))
sketch12.addConstraint(Sketcher.Constraint("Equal", 3, 4))
sketch12.addConstraint(Sketcher.Constraint("Horizontal", 0, 3, 1, 3))
sketch12.addConstraint(Sketcher.Constraint("Horizontal", 1, 3, 2, 3))
sketch12.addConstraint(Sketcher.Constraint("Horizontal", 2, 3, 3, 3))
sketch12.addConstraint(Sketcher.Constraint("Horizontal", 3, 3, 4, 3))
sketch12.addConstraint(Sketcher.Constraint("Diameter", 0, Q("0.25 in")))
sketch12.addConstraint(Sketcher.Constraint("DistanceX", -1, 1, 0, 3, Q("23 in")))
sketch12.addConstraint(Sketcher.Constraint("DistanceX", -1, 1, 1, 3, Q("19 in")))
sketch12.addConstraint(Sketcher.Constraint("DistanceX", -1, 1, 2, 3, Q("15 in")))
sketch12.addConstraint(Sketcher.Constraint("DistanceX", -1, 1, 3, 3, Q("11 in")))
sketch12.addConstraint(Sketcher.Constraint("DistanceX", -1, 1, 4, 3, Q("7 in")))
sketch12.addConstraint(Sketcher.Constraint("DistanceY", -1, 1, 0, 3, Q("65.25 in")))
pocket6 = body.newObject("PartDesign::Pocket", "Pocket005")
pocket6.Profile = sketch12
pocket6.Type = "ThroughAll"
pocket6.Reversed = True

# Sketch on XY plane
sketch13 = body.newObject("Sketcher::SketchObject", "Sketch012")
sketch13.AttachmentSupport = (doc.getObject("XY_Plane"), [""])
sketch13.MapMode = "FlatFace"
sketch13.AttachmentOffset = App.Placement(Vector(0, 0, -0.72 * 25.4), App.Rotation())
sketch13.addGeometry(Part.Circle(Vector(373.9, 774.7, 0), Vector(0, 0, 1), 3.2), False)
sketch13.addGeometry(Part.Circle(Vector(323.1, 774.7, 0), Vector(0, 0, 1), 3.2), False)
sketch13.addConstraint(Sketcher.Constraint("Equal", 0, 1))
sketch13.addConstraint(Sketcher.Constraint("Horizontal", 0, 3, 1, 3))
sketch13.addConstraint(Sketcher.Constraint("Diameter", 0, Q("0.25 in")))
sketch13.addConstraint(Sketcher.Constraint("DistanceX", 1, 3, 0, 3, Q("2 in")))
sketch13.addConstraint(Sketcher.Constraint("DistanceY", -1, 1, 0, 3, Q("30.5 in")))
sketch13.addConstraint(Sketcher.Constraint("DistanceX", -1, 1, 0, 3, Q("14.72 in")))
pocket7 = body.newObject("PartDesign::Pocket", "Pocket006")
pocket7.Profile = sketch13
pocket7.Type = "ThroughAll"
pocket7.Reversed = True

doc.recompute()
